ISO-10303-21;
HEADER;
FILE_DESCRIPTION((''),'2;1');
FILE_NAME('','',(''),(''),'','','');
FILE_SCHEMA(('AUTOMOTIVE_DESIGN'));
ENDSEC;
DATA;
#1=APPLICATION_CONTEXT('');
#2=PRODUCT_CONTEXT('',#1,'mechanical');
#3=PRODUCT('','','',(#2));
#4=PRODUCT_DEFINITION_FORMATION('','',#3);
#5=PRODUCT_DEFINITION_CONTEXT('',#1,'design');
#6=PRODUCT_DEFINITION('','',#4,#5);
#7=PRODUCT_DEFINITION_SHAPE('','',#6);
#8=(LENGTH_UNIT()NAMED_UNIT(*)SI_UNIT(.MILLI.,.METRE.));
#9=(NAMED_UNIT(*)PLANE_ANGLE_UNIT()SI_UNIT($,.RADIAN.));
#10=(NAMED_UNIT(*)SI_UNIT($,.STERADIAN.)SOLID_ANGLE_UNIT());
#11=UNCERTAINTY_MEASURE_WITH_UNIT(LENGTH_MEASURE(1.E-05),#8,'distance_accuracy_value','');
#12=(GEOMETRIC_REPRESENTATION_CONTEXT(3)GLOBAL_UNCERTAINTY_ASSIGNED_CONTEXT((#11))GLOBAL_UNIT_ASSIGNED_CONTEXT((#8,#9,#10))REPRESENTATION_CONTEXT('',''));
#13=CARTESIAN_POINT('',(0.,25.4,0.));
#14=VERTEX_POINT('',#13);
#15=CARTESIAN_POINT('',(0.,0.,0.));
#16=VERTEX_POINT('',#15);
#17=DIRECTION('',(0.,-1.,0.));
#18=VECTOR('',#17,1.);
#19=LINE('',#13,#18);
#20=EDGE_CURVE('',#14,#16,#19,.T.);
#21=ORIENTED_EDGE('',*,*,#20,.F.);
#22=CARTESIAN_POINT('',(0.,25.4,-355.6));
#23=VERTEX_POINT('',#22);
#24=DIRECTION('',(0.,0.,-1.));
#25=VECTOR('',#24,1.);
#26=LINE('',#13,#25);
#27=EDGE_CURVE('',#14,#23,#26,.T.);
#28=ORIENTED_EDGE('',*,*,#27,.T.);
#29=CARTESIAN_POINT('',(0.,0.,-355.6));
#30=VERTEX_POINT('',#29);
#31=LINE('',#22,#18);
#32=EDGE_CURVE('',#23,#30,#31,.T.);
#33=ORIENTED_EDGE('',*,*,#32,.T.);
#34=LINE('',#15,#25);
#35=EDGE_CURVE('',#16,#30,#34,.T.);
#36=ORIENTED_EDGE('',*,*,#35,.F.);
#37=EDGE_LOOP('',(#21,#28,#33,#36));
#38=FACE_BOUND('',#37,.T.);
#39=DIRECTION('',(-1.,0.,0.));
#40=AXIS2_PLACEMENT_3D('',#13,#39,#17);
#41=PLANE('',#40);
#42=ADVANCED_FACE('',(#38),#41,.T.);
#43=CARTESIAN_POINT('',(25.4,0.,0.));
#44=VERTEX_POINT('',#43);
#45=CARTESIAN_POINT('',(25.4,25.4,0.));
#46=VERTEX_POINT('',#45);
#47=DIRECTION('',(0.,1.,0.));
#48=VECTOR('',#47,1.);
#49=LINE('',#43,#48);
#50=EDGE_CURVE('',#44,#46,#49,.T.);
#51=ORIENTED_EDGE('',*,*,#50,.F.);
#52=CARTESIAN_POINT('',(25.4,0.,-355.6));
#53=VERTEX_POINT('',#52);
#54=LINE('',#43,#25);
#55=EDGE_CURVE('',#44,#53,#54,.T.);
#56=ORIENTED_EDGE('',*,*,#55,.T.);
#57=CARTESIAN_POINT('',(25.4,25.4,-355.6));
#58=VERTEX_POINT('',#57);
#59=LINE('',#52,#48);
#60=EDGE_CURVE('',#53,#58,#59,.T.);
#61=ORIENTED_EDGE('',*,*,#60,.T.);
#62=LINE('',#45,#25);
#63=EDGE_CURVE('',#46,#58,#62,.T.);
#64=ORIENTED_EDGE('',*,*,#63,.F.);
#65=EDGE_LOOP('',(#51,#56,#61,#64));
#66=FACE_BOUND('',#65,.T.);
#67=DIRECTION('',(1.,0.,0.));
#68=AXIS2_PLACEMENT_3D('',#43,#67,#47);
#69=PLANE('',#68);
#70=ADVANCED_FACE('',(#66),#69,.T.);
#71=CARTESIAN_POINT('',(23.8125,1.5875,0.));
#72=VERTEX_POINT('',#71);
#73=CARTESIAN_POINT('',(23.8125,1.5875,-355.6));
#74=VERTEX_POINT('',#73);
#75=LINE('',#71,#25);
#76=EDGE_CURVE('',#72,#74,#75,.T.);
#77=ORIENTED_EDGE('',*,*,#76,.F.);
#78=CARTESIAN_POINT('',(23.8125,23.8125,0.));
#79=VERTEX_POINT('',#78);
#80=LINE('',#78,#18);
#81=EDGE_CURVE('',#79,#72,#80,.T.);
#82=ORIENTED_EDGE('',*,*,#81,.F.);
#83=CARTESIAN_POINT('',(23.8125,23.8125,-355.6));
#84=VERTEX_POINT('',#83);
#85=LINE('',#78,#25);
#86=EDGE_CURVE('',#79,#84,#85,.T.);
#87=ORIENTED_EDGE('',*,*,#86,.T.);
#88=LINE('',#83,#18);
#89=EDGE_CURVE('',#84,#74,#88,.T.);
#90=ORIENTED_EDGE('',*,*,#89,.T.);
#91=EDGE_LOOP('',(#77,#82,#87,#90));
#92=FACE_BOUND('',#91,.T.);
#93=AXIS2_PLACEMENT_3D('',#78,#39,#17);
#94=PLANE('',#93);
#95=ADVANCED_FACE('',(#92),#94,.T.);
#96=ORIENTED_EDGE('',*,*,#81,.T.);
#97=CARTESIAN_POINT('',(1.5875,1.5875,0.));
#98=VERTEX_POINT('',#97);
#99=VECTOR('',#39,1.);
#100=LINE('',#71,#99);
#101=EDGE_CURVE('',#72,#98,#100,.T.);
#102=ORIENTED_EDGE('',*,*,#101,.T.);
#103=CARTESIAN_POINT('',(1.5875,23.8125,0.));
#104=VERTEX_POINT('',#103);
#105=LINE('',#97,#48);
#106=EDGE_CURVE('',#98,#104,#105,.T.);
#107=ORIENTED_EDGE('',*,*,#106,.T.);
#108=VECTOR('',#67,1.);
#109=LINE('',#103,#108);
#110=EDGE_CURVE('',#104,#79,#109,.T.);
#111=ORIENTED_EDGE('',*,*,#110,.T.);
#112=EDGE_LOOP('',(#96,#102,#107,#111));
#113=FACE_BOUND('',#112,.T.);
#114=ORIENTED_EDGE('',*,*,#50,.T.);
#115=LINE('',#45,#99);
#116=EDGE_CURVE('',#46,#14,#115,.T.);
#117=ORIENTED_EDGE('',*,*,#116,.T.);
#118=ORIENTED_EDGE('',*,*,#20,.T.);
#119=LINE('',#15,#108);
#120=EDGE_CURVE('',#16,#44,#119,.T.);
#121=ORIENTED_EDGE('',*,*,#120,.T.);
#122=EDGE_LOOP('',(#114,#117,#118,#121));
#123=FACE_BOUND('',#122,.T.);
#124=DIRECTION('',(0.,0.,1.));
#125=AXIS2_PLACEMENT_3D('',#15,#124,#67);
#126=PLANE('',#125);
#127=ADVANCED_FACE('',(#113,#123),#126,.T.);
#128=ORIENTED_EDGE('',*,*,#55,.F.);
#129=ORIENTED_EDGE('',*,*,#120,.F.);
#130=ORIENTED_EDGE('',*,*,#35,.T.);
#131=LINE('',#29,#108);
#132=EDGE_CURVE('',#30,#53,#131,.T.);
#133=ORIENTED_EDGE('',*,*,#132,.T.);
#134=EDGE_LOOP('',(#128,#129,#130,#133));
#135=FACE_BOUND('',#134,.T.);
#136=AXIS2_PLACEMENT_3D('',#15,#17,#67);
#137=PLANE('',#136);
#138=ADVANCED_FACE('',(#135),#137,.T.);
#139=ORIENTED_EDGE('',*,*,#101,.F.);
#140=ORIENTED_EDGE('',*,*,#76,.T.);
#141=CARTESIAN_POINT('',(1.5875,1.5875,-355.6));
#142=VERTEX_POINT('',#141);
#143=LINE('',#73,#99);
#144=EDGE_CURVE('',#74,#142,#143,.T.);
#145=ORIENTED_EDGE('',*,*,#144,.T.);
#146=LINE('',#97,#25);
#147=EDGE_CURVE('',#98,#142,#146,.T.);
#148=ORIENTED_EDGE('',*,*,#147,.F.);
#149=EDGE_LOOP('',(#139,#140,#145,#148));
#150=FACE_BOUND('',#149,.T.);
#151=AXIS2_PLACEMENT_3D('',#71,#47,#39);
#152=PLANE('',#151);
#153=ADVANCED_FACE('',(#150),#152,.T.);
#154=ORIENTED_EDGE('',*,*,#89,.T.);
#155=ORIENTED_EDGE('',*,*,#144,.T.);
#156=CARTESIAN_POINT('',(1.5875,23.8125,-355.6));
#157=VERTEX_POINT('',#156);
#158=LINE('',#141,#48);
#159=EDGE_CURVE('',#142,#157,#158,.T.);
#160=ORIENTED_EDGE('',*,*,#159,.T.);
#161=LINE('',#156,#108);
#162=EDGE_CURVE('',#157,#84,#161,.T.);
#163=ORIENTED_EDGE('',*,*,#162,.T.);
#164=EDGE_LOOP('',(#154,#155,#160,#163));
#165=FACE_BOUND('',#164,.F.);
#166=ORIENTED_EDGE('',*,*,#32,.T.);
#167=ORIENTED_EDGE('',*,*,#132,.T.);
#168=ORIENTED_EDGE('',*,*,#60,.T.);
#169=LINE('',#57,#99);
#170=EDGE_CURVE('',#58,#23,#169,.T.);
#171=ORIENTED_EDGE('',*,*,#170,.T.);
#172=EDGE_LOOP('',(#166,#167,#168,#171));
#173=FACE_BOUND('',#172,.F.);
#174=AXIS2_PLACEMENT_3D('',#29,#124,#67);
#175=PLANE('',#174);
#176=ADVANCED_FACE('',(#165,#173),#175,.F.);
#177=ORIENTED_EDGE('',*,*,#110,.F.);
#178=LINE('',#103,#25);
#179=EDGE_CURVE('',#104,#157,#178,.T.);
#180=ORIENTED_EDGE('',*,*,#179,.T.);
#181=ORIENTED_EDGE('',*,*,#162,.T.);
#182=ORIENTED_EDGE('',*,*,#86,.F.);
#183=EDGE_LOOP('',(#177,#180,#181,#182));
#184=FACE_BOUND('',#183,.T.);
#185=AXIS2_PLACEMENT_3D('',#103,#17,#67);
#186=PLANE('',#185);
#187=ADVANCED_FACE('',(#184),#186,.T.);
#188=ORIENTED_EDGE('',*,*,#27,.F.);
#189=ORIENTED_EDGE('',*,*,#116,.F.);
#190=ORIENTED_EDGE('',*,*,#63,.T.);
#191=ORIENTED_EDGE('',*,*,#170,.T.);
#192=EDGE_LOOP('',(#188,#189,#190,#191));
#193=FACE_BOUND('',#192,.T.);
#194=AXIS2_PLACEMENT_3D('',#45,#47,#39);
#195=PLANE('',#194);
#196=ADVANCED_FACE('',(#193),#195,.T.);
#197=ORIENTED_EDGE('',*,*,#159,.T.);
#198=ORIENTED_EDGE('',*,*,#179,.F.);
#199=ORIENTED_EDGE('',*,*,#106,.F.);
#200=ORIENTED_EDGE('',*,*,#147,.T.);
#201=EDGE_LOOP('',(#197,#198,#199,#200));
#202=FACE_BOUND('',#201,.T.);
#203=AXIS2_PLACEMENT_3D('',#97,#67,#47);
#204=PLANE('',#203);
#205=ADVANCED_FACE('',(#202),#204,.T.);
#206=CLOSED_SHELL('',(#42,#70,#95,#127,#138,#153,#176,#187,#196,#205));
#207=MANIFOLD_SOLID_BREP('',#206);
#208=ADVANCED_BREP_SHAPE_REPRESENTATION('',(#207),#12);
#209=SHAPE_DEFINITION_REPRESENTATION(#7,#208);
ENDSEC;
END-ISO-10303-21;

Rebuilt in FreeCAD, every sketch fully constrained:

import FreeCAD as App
import Part
import Sketcher

V = App.Vector
Q = App.Units.Quantity


def add_polygon(sketch, points):
    """Adds a closed chain of lines whose ends are joined by coincident constraints."""
    first, n = sketch.GeometryCount, len(points)
    for a, b in zip(points, points[1:] + points[:1]):
        sketch.addGeometry(Part.LineSegment(App.Vector(*a, 0), App.Vector(*b, 0)), False)
    for i in range(n):
        sketch.addConstraint(Sketcher.Constraint("Coincident", first + i, 2, first + (i + 1) % n, 1))

doc = App.newDocument("Part")
body = doc.addObject("PartDesign::Body", "Body")

sketch1 = body.newObject("Sketcher::SketchObject", "Sketch")
sketch1.AttachmentSupport = (doc.getObject("XY_Plane"), [""])
sketch1.MapMode = "FlatFace"
add_polygon(sketch1, [(0, 25.4), (0, 0), (25.4, 0), (25.4, 25.4)])
add_polygon(sketch1, [(1.5875, 1.5875), (1.5875, 23.8125), (23.8125, 23.8125), (23.8125, 1.5875)])
sketch1.addConstraint(Sketcher.Constraint("Vertical", 0))
sketch1.addConstraint(Sketcher.Constraint("Horizontal", 1))
sketch1.addConstraint(Sketcher.Constraint("Vertical", 2))
sketch1.addConstraint(Sketcher.Constraint("Horizontal", 3))
sketch1.addConstraint(Sketcher.Constraint("Vertical", 4))
sketch1.addConstraint(Sketcher.Constraint("Horizontal", 5))
sketch1.addConstraint(Sketcher.Constraint("Vertical", 6))
sketch1.addConstraint(Sketcher.Constraint("Horizontal", 7))
sketch1.addConstraint(Sketcher.Constraint("Coincident", 0, 2, -1, 1))
sketch1.addConstraint(Sketcher.Constraint("Equal", 3, 0))
sketch1.addConstraint(Sketcher.Constraint("Equal", 7, 4))
sketch1.addConstraint(Sketcher.Constraint("DistanceX", 1, 1, 1, 2, Q("1 in")))
sketch1.addConstraint(Sketcher.Constraint("DistanceX", -1, 1, 4, 2, Q("0.0625 in")))
sketch1.addConstraint(Sketcher.Constraint("DistanceY", -1, 1, 6, 2, Q("0.0625 in")))
sketch1.addConstraint(Sketcher.Constraint("DistanceY", 4, 2, 3, 2, Q("0.0625 in")))
pad1 = body.newObject("PartDesign::Pad", "Pad")
pad1.Profile = sketch1
pad1.Length = Q("14 in")
pad1.Reversed = True

doc.recompute()
